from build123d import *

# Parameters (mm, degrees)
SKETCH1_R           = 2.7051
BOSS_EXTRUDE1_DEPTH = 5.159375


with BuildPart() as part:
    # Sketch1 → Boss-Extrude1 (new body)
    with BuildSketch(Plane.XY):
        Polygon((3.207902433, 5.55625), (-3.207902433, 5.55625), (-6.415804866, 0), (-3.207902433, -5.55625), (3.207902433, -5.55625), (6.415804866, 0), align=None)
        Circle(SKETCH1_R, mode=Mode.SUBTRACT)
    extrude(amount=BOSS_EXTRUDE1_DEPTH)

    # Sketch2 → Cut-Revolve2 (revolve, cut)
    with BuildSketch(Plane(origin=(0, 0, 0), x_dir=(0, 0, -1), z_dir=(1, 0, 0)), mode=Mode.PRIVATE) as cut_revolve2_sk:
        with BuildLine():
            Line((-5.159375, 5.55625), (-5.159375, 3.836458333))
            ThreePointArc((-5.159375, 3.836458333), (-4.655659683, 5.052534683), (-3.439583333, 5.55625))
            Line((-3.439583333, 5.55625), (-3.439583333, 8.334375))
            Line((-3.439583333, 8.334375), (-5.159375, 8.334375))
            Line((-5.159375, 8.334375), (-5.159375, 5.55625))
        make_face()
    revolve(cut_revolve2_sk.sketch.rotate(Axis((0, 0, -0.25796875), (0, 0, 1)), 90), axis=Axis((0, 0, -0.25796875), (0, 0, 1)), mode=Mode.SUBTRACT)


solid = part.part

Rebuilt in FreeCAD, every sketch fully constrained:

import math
import FreeCAD as App
import Part
import Sketcher
Q = App.Units.Quantity

doc = App.newDocument("Part")
body = doc.addObject("PartDesign::Body", "Body")

sketch1 = doc.addObject("Sketcher::SketchObject", "Sketch")
body.addObject(sketch1)
sketch1.AttachmentSupport = (doc.XY_Plane, [""])
sketch1.MapMode = "FlatFace"
sketch1.addGeometry(Part.LineSegment(App.Vector(3.2, 5.6, 0), App.Vector(-3.2, 5.6, 0)), False)
sketch1.addGeometry(Part.LineSegment(App.Vector(-3.2, 5.6, 0), App.Vector(-6.4, 0, 0)), False)
sketch1.addGeometry(Part.LineSegment(App.Vector(-6.4, 0, 0), App.Vector(-3.2, -5.6, 0)), False)
sketch1.addGeometry(Part.LineSegment(App.Vector(-3.2, -5.6, 0), App.Vector(3.2, -5.6, 0)), False)
sketch1.addGeometry(Part.LineSegment(App.Vector(3.2, -5.6, 0), App.Vector(6.4, 0, 0)), False)
sketch1.addGeometry(Part.LineSegment(App.Vector(6.4, 0, 0), App.Vector(3.2, 5.6, 0)), False)
sketch1.addGeometry(Part.Circle(App.Vector(0, 0, 0), App.Vector(0, 0, 1), 2.7), False)
sketch1.addConstraint(Sketcher.Constraint("Coincident", 0, 2, 1, 1))
sketch1.addConstraint(Sketcher.Constraint("Coincident", 1, 2, 2, 1))
sketch1.addConstraint(Sketcher.Constraint("Coincident", 2, 2, 3, 1))
sketch1.addConstraint(Sketcher.Constraint("Coincident", 3, 2, 4, 1))
sketch1.addConstraint(Sketcher.Constraint("Coincident", 4, 2, 5, 1))
sketch1.addConstraint(Sketcher.Constraint("Coincident", 5, 2, 0, 1))
sketch1.addConstraint(Sketcher.Constraint("Horizontal", 0))
sketch1.addConstraint(Sketcher.Constraint("Horizontal", 3))
sketch1.addConstraint(Sketcher.Constraint("Coincident", 6, 3, -1, 1))
sketch1.addConstraint(Sketcher.Constraint("Symmetric", 0, 2, 3, 2, -1, 1))
sketch1.addConstraint(Sketcher.Constraint("Symmetric", 1, 2, 4, 2, -1, 1))
sketch1.addConstraint(Sketcher.Constraint("PointOnObject", 1, 2, -1))
sketch1.addConstraint(Sketcher.Constraint("Parallel", 2, 5))
sketch1.addConstraint(Sketcher.Constraint("Vertical", 0, 2, 2, 2))
sketch1.addConstraint(Sketcher.Constraint("Diameter", 6, Q("0.213 in")))
sketch1.addConstraint(Sketcher.Constraint("Angle", 1, Q("-120 deg")))
sketch1.addConstraint(Sketcher.Constraint("DistanceY", -1, 1, 0, 2, Q("0.21875 in")))
sketch1.addConstraint(Sketcher.Constraint("DistanceX", 0, 2, 0, 1, Q("6.415805 mm")))
pad1 = doc.addObject("PartDesign::Pad", "Pad")
body.addObject(pad1)
pad1.Profile = sketch1
pad1.Length = Q("0.203125 in")

sketch2 = doc.addObject("Sketcher::SketchObject", "Sketch001")
body.addObject(sketch2)
sketch2.AttachmentSupport = (doc.YZ_Plane, [""])
sketch2.MapMode = "FlatFace"
sketch2.addGeometry(Part.ArcOfCircle(Part.Circle(App.Vector(3.8, 3.4, 0), App.Vector(0, 0, 1), 1.7), math.radians(0), math.radians(90)), False)
sketch2.addGeometry(Part.LineSegment(App.Vector(5.6, 3.4, 0), App.Vector(8.3, 3.4, 0)), False)
sketch2.addGeometry(Part.LineSegment(App.Vector(8.3, 3.4, 0), App.Vector(8.3, 5.2, 0)), False)
sketch2.addGeometry(Part.LineSegment(App.Vector(8.3, 5.2, 0), App.Vector(3.8, 5.2, 0)), False)
sketch2.addConstraint(Sketcher.Constraint("Coincident", 0, 1, 1, 1))
sketch2.addConstraint(Sketcher.Constraint("Coincident", 1, 2, 2, 1))
sketch2.addConstraint(Sketcher.Constraint("Coincident", 2, 2, 3, 1))
sketch2.addConstraint(Sketcher.Constraint("Tangent", 3, 2, 0, 2))
sketch2.addConstraint(Sketcher.Constraint("Horizontal", 1))
sketch2.addConstraint(Sketcher.Constraint("Vertical", 2))
sketch2.addConstraint(Sketcher.Constraint("Horizontal", 3))
sketch2.addConstraint(Sketcher.Constraint("DistanceX", 1, 1, 1, 2, Q("0.109375 in")))
sketch2.addConstraint(Sketcher.Constraint("DistanceX", -1, 1, 0, 1, Q("0.21875 in")))
sketch2.addConstraint(Sketcher.Constraint("DistanceY", -1, 1, 2, 2, Q("0.203125 in")))
sketch2.addConstraint(Sketcher.Constraint("Radius", 0, Q("1.719792 mm")))
sketch2.addConstraint(Sketcher.Constraint("DistanceY", 2, 1, 2, 2, Q("1.719792 mm")))
groove = doc.addObject("PartDesign::Groove", "Groove")
body.addObject(groove)
groove.Profile = sketch2
groove.ReferenceAxis = (sketch2, ["V_Axis"])
groove.Angle = 360

doc.recompute()
